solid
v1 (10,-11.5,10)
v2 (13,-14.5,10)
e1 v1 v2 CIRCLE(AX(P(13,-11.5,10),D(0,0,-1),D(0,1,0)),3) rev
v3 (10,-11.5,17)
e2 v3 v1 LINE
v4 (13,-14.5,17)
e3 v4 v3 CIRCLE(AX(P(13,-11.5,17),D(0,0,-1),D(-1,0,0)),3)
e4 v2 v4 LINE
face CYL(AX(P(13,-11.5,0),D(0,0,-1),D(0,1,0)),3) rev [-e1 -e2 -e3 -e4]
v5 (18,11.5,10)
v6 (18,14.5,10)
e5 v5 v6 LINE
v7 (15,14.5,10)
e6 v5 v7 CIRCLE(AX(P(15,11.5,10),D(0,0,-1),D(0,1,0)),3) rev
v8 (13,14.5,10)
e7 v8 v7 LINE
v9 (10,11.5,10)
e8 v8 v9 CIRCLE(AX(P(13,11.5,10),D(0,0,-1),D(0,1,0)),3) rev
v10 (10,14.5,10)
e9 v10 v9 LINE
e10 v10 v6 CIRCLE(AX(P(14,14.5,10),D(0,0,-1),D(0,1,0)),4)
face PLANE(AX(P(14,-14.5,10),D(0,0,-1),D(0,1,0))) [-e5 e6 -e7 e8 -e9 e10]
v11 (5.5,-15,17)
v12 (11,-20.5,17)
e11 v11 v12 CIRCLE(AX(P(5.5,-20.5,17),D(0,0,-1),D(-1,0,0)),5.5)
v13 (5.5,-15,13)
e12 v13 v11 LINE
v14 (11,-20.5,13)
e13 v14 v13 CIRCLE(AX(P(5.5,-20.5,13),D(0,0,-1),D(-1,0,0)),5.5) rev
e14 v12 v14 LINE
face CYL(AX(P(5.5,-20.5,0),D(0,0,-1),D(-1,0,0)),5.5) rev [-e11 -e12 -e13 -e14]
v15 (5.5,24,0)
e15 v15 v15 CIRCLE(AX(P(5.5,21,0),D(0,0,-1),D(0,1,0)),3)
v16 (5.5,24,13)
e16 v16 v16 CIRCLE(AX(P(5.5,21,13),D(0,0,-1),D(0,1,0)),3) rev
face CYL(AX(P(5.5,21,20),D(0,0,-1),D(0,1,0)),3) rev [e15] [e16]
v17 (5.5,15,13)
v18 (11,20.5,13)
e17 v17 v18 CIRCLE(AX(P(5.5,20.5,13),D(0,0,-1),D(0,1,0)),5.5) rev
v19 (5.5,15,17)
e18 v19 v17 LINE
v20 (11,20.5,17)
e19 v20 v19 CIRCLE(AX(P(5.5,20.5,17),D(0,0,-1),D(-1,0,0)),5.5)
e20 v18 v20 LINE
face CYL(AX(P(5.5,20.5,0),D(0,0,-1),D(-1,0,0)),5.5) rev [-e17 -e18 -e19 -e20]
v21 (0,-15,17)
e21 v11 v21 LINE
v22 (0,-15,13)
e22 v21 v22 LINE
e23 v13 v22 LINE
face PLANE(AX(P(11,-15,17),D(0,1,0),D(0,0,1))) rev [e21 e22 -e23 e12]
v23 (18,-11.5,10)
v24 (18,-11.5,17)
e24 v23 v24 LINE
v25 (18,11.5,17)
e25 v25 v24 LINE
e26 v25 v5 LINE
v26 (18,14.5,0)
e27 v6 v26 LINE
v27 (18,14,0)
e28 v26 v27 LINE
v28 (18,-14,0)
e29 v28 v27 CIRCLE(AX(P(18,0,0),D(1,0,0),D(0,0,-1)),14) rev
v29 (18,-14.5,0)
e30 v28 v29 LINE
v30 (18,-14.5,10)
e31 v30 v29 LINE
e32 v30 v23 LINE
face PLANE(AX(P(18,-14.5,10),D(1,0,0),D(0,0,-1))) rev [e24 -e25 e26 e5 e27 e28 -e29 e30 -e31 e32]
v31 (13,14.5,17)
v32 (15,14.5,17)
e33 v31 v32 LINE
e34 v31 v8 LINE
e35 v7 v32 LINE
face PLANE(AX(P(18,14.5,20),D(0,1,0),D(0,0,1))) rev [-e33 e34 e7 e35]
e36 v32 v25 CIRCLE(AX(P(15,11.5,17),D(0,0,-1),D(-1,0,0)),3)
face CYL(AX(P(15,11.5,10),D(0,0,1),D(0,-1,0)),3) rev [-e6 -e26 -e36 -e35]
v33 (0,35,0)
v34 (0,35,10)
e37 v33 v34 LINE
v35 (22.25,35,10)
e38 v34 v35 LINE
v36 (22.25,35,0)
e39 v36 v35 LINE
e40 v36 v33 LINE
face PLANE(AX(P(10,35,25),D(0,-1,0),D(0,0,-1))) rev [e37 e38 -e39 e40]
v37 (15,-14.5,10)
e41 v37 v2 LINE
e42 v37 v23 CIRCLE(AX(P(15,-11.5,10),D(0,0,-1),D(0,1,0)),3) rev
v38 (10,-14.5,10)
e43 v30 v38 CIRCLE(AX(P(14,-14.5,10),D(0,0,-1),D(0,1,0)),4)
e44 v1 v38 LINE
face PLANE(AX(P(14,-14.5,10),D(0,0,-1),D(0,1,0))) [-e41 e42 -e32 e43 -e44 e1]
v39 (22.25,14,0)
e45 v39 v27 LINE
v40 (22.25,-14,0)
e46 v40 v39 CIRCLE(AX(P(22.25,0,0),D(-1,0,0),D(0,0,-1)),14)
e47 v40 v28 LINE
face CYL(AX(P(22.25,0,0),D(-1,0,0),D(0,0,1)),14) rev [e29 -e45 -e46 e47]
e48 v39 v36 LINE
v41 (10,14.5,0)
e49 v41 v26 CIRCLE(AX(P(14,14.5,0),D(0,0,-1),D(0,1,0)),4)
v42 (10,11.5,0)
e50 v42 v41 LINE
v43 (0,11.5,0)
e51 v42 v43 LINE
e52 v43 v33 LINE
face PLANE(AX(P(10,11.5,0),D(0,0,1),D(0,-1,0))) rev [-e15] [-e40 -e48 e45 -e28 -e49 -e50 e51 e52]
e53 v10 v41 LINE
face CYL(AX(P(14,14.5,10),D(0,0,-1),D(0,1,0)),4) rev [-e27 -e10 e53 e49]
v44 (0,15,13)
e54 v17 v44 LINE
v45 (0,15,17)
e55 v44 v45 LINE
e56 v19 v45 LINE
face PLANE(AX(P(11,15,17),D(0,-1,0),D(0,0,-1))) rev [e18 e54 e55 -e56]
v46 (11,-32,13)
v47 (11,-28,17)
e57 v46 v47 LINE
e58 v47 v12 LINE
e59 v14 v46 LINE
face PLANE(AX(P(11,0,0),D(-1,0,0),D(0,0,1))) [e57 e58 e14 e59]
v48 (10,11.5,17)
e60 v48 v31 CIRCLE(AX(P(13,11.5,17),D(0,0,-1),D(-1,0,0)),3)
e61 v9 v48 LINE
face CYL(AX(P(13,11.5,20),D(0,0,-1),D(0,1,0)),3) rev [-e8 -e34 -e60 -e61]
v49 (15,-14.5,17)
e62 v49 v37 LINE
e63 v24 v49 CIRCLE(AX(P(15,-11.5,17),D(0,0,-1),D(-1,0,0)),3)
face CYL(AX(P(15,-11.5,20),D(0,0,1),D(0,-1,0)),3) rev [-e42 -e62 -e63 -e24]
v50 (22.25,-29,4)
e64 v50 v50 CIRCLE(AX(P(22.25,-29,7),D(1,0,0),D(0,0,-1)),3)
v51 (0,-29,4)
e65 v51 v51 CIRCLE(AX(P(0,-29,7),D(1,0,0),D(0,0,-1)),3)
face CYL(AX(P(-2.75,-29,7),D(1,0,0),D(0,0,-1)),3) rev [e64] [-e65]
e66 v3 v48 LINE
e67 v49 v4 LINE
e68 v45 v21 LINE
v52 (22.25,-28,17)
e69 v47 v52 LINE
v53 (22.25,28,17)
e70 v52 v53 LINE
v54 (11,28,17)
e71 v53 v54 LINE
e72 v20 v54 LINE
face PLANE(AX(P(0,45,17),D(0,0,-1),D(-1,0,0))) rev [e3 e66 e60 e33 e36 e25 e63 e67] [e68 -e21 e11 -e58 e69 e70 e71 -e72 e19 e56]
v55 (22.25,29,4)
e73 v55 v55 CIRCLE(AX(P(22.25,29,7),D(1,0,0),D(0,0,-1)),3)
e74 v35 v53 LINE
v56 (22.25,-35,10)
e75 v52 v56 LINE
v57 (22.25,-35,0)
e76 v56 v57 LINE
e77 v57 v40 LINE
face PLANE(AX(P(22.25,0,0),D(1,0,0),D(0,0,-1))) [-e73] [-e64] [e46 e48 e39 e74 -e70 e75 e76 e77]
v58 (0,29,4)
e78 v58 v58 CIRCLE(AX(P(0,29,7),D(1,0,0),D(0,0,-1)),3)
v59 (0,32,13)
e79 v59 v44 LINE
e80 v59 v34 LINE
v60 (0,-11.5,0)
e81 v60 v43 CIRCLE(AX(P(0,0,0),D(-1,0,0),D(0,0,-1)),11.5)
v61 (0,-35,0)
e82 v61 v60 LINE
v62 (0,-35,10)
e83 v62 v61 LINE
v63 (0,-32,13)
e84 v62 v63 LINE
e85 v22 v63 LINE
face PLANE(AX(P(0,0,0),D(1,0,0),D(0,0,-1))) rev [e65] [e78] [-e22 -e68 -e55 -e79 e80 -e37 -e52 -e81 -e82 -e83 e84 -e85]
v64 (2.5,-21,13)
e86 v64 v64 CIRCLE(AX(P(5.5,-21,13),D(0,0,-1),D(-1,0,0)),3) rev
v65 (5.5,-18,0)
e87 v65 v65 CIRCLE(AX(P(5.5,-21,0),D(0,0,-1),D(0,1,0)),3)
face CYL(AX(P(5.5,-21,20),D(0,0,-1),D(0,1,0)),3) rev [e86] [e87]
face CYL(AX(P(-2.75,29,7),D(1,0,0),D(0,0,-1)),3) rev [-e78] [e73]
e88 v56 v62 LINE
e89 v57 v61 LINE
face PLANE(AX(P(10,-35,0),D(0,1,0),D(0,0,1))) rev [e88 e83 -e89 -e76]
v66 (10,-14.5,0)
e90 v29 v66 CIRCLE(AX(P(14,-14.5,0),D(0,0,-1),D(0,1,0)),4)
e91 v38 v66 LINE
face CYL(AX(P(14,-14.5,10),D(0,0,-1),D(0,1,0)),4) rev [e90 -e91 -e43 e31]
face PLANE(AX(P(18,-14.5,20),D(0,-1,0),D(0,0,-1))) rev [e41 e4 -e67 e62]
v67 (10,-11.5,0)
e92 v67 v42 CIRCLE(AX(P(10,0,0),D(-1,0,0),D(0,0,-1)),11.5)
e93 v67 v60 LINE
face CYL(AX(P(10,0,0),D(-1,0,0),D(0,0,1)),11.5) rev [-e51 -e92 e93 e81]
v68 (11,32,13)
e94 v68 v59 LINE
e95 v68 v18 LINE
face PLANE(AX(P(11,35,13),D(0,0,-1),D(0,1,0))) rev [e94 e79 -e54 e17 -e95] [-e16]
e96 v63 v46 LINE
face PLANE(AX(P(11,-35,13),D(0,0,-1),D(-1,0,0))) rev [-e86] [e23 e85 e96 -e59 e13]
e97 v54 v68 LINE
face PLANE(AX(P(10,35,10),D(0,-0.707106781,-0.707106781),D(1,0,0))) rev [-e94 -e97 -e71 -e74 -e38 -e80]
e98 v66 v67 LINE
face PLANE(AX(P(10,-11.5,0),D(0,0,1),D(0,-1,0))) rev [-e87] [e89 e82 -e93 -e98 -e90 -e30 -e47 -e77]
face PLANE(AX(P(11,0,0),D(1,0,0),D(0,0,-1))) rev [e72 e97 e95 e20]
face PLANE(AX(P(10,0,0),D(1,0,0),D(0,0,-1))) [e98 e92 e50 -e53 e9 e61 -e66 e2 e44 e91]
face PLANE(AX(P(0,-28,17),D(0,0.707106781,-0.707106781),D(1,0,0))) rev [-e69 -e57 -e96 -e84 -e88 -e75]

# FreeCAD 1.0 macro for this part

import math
import FreeCAD as App
import Part
import Sketcher
from FreeCAD import Vector
Q = App.Units.Quantity


def edges_at(feature, points):
    """Names of the edges that pass closest to the given points."""
    edges = feature.Shape.Edges
    near = lambda p: min(range(len(edges)), key=lambda i: edges[i].distToShape(Part.Vertex(*p))[0])
    return sorted({f"Edge{near(p) + 1}" for p in points})


def add_polygon(sketch, points):
    """Adds a closed chain of lines whose ends are joined by coincident constraints."""
    first, n = sketch.GeometryCount, len(points)
    for a, b in zip(points, points[1:] + points[:1]):
        sketch.addGeometry(Part.LineSegment(App.Vector(*a, 0), App.Vector(*b, 0)), False)
    for i in range(n):
        sketch.addConstraint(Sketcher.Constraint("Coincident", first + i, 2, first + (i + 1) % n, 1))

doc = App.newDocument("Part")
body = doc.addObject("PartDesign::Body", "Body")

# Sketch on YZ plane
sketch1 = body.newObject("Sketcher::SketchObject", "Sketch")
sketch1.AttachmentSupport = (doc.getObject("YZ_Plane"), [""])
sketch1.MapMode = "FlatFace"
sketch1.addGeometry([
    Part.LineSegment(Vector(12, 0, 0), Vector(35, 0, 0)),  # 0
    Part.LineSegment(Vector(35, 0, 0), Vector(35, 25, 0)),  # 1
    Part.LineSegment(Vector(35, 25, 0), Vector(-35, 25, 0)),  # 2
    Part.LineSegment(Vector(-35, 25, 0), Vector(-35, 0, 0)),  # 3
    Part.LineSegment(Vector(-35, 0, 0), Vector(-12, 0, 0)),  # 4
    Part.ArcOfCircle(Part.Circle(Vector(0, 0, 0), Vector(0, 0, 1), 12), math.radians(0), math.radians(180)),  # 5
], False)
sketch1.addConstraint([
    Sketcher.Constraint("Coincident", 0, 2, 1, 1),
    Sketcher.Constraint("Coincident", 1, 2, 2, 1),
    Sketcher.Constraint("Coincident", 2, 2, 3, 1),
    Sketcher.Constraint("Coincident", 3, 2, 4, 1),
    Sketcher.Constraint("Coincident", 4, 2, 5, 2),
    Sketcher.Constraint("Coincident", 5, 1, 0, 1),
    Sketcher.Constraint("Horizontal", 0),
    Sketcher.Constraint("Vertical", 1),
    Sketcher.Constraint("Horizontal", 2),
    Sketcher.Constraint("Vertical", 3),
    Sketcher.Constraint("Horizontal", 4),
    Sketcher.Constraint("Coincident", 5, 3, -1, 1),
    Sketcher.Constraint("Symmetric", 0, 2, 3, 2, -1, 1),
    Sketcher.Constraint("PointOnObject", 0, 2, -1),
    Sketcher.Constraint("Radius", 5, Q("11.5 mm")),
    Sketcher.Constraint("DistanceX", 2, 2, 2, 1, Q("70 mm")),
    Sketcher.Constraint("DistanceY", 1, 1, 1, 2, Q("25 mm")),
])
pad1 = body.newObject("PartDesign::Pad", "Pad")
pad1.Profile = sketch1
pad1.Length = 10

# Sketch on YZ plane
sketch2 = body.newObject("Sketcher::SketchObject", "Sketch001")
sketch2.AttachmentSupport = (doc.getObject("YZ_Plane"), [""])
sketch2.MapMode = "FlatFace"
sketch2.AttachmentOffset = App.Placement(Vector(0, 0, 10), App.Rotation())
sketch2.addGeometry([
    Part.LineSegment(Vector(-35, 0, 0), Vector(-14, 0, 0)),  # 0
    Part.ArcOfCircle(Part.Circle(Vector(0, 0, 0), Vector(0, 0, 1), 14), math.radians(0), math.radians(180)),  # 1
    Part.LineSegment(Vector(14, 0, 0), Vector(35, 0, 0)),  # 2
    Part.LineSegment(Vector(35, 0, 0), Vector(35, 25, 0)),  # 3
    Part.LineSegment(Vector(35, 25, 0), Vector(-35, 25, 0)),  # 4
    Part.LineSegment(Vector(-35, 25, 0), Vector(-35, 0, 0)),  # 5
], False)
sketch2.addConstraint([
    Sketcher.Constraint("Coincident", 0, 2, 1, 2),
    Sketcher.Constraint("Coincident", 1, 1, 2, 1),
    Sketcher.Constraint("Coincident", 2, 2, 3, 1),
    Sketcher.Constraint("Coincident", 3, 2, 4, 1),
    Sketcher.Constraint("Coincident", 4, 2, 5, 1),
    Sketcher.Constraint("Coincident", 5, 2, 0, 1),
    Sketcher.Constraint("Horizontal", 0),
    Sketcher.Constraint("Horizontal", 2),
    Sketcher.Constraint("Vertical", 3),
    Sketcher.Constraint("Horizontal", 4),
    Sketcher.Constraint("Vertical", 5),
    Sketcher.Constraint("Coincident", 1, 3, -1, 1),
    Sketcher.Constraint("Symmetric", 2, 2, 5, 2, -1, 1),
    Sketcher.Constraint("PointOnObject", 0, 2, -1),
    Sketcher.Constraint("Radius", 1, Q("14 mm")),
    Sketcher.Constraint("DistanceX", 0, 1, 0, 2, Q("21 mm")),
    Sketcher.Constraint("DistanceY", 3, 1, 3, 2, Q("25 mm")),
])
pad2 = body.newObject("PartDesign::Pad", "Pad001")
pad2.Profile = sketch2
pad2.Length = 12.25

# Sketch on XZ plane
sketch3 = body.newObject("Sketcher::SketchObject", "Sketch002")
sketch3.AttachmentSupport = (doc.getObject("XZ_Plane"), [""])
sketch3.MapMode = "FlatFace"
sketch3.AttachmentOffset = App.Placement(Vector(0, 0, 35), App.Rotation())
add_polygon(sketch3, [(0, 25), (0, 17), (22, 17), (22, 25)])  # lines 0-3
sketch3.addConstraint([
    Sketcher.Constraint("Vertical", 0),
    Sketcher.Constraint("Horizontal", 1),
    Sketcher.Constraint("Vertical", 2),
    Sketcher.Constraint("Horizontal", 3),
    Sketcher.Constraint("PointOnObject", 0, 2, -2),
    Sketcher.Constraint("DistanceY", 0, 2, 0, 1, Q("8 mm")),
    Sketcher.Constraint("DistanceY", -1, 1, 0, 2, Q("17 mm")),
    Sketcher.Constraint("DistanceX", 1, 1, 1, 2, Q("22.25 mm")),
])
pocket1 = body.newObject("PartDesign::Pocket", "Pocket")
pocket1.Profile = sketch3
pocket1.Length = 80

# Sketch on YZ plane
sketch4 = body.newObject("Sketcher::SketchObject", "Sketch003")
sketch4.AttachmentSupport = (doc.getObject("YZ_Plane"), [""])
sketch4.MapMode = "FlatFace"
sketch4.AttachmentOffset = App.Placement(Vector(0, 0, 22.25), App.Rotation())
sketch4.addGeometry([
    Part.Circle(Vector(-29, 7, 0), Vector(0, 0, 1), 3),
    Part.Circle(Vector(29, 7, 0), Vector(0, 0, 1), 3),
], False)
sketch4.addConstraint([
    Sketcher.Constraint("Equal", 0, 1),
    Sketcher.Constraint("Symmetric", 0, 3, 1, 3, -2),
    Sketcher.Constraint("Diameter", 0, Q("6 mm")),
    Sketcher.Constraint("DistanceX", 0, 3, -1, 1, Q("29 mm")),
    Sketcher.Constraint("DistanceY", -1, 1, 0, 3, Q("7 mm")),
])
pocket2 = body.newObject("PartDesign::Pocket", "Pocket001")
pocket2.Profile = sketch4
pocket2.Length = 25

# Sketch on XY plane
sketch5 = body.newObject("Sketcher::SketchObject", "Sketch004")
sketch5.AttachmentSupport = (doc.getObject("XY_Plane"), [""])
sketch5.MapMode = "FlatFace"
sketch5.addGeometry([
    Part.LineSegment(Vector(18, 14.5, 0), Vector(18, -14.5, 0)),
    Part.ArcOfCircle(Part.Circle(Vector(14, -14.5, 0), Vector(0, 0, 1), 4), math.radians(180), math.radians(360)),
    Part.LineSegment(Vector(10, -14.5, 0), Vector(10, 14.5, 0)),
    Part.ArcOfCircle(Part.Circle(Vector(14, 14.5, 0), Vector(0, 0, 1), 4), math.radians(0), math.radians(180)),
], False)
sketch5.addConstraint([
    Sketcher.Constraint("Tangent", 0, 2, 1, 2),
    Sketcher.Constraint("Tangent", 1, 1, 2, 1),
    Sketcher.Constraint("Tangent", 2, 2, 3, 2),
    Sketcher.Constraint("Tangent", 3, 1, 0, 1),
    Sketcher.Constraint("Vertical", 0),
    Sketcher.Constraint("Vertical", 2),
    Sketcher.Constraint("Radius", 1, Q("4 mm")),
    Sketcher.Constraint("DistanceY", 0, 2, 0, 1, Q("29 mm")),
    Sketcher.Constraint("DistanceX", -1, 1, 1, 3, Q("14 mm")),
    Sketcher.Constraint("DistanceY", 1, 3, -1, 1, Q("14.5 mm")),
])
pocket3 = body.newObject("PartDesign::Pocket", "Pocket002")
pocket3.Profile = sketch5
pocket3.Length = 10
pocket3.Reversed = True

# Sketch on XY plane
sketch6 = body.newObject("Sketcher::SketchObject", "Sketch005")
sketch6.AttachmentSupport = (doc.getObject("XY_Plane"), [""])
sketch6.MapMode = "FlatFace"
sketch6.AttachmentOffset = App.Placement(Vector(0, 0, 10), App.Rotation())
add_polygon(sketch6, [(18, 14), (18, -14), (10, -14), (10, 14)])  # lines 0-3
sketch6.addConstraint([
    Sketcher.Constraint("Vertical", 0),
    Sketcher.Constraint("Horizontal", 1),
    Sketcher.Constraint("Vertical", 2),
    Sketcher.Constraint("Horizontal", 3),
    Sketcher.Constraint("DistanceX", 1, 2, 1, 1, Q("8 mm")),
    Sketcher.Constraint("DistanceY", 0, 2, 0, 1, Q("29 mm")),
    Sketcher.Constraint("DistanceX", -1, 1, 0, 2, Q("18 mm")),
    Sketcher.Constraint("DistanceY", 0, 2, -1, 1, Q("14.5 mm")),
])
pocket4 = body.newObject("PartDesign::Pocket", "Pocket003")
pocket4.Profile = sketch6
pocket4.Length = 10
pocket4.Reversed = True
doc.recompute()

fillet = body.newObject("PartDesign::Fillet", "Fillet")
fillet.Base = (pocket4, edges_at(pocket4, [
    (18, 14.5, 13.5),
    (18, -14.5, 13.5),
    (10, 14.5, 13.5),
    (10, -14.5, 13.5),
]))
fillet.Radius = 3

# Sketch on XY plane
sketch7 = body.newObject("Sketcher::SketchObject", "Sketch006")
sketch7.AttachmentSupport = (doc.getObject("XY_Plane"), [""])
sketch7.MapMode = "FlatFace"
sketch7.addGeometry([
    Part.Circle(Vector(5.5, -21, 0), Vector(0, 0, 1), 3),
    Part.Circle(Vector(5.5, 21, 0), Vector(0, 0, 1), 3),
], False)
sketch7.addConstraint([
    Sketcher.Constraint("Equal", 0, 1),
    Sketcher.Constraint("Symmetric", 0, 3, 1, 3, -1),
    Sketcher.Constraint("Diameter", 0, Q("6 mm")),
    Sketcher.Constraint("DistanceY", 0, 3, -1, 1, Q("21 mm")),
    Sketcher.Constraint("DistanceX", -1, 1, 0, 3, Q("5.5 mm")),
])
pocket5 = body.newObject("PartDesign::Pocket", "Pocket004")
pocket5.Profile = sketch7
pocket5.Length = 20
pocket5.Reversed = True

# Sketch on YZ plane
sketch8 = body.newObject("Sketcher::SketchObject", "Sketch007")
sketch8.AttachmentSupport = (doc.getObject("YZ_Plane"), [""])
sketch8.MapMode = "FlatFace"
add_polygon(sketch8, [(-15, 13), (-35, 13), (-35, 17), (-15, 17)])  # lines 0-3
add_polygon(sketch8, [(35, 13), (15, 13), (15, 17), (35, 17)])  # lines 4-7
sketch8.addConstraint([
    Sketcher.Constraint("Horizontal", 0),
    Sketcher.Constraint("Vertical", 1),
    Sketcher.Constraint("Horizontal", 2),
    Sketcher.Constraint("Vertical", 3),
    Sketcher.Constraint("Horizontal", 4),
    Sketcher.Constraint("Vertical", 5),
    Sketcher.Constraint("Horizontal", 6),
    Sketcher.Constraint("Vertical", 7),
    Sketcher.Constraint("Symmetric", 3, 2, 4, 2, -2),
    Sketcher.Constraint("Symmetric", 1, 2, 6, 2, -2),
    Sketcher.Constraint("DistanceX", 0, 2, 0, 1, Q("20 mm")),
    Sketcher.Constraint("DistanceY", 1, 1, 1, 2, Q("4 mm")),
    Sketcher.Constraint("DistanceX", 0, 2, -1, 1, Q("35 mm")),
    Sketcher.Constraint("DistanceY", -1, 1, 0, 2, Q("13 mm")),
])
pocket6 = body.newObject("PartDesign::Pocket", "Pocket005")
pocket6.Profile = sketch8
pocket6.Length = 11
pocket6.Reversed = True
doc.recompute()

fillet2 = body.newObject("PartDesign::Fillet", "Fillet001")
fillet2.Base = (pocket6, edges_at(pocket6, [(11, -15, 15), (11, 15, 15)]))
fillet2.Radius = 5.5
doc.recompute()

chamfer = body.newObject("PartDesign::Chamfer", "Chamfer")
chamfer.Base = (fillet2, edges_at(fillet2, [(16.625, -35, 17), (16.625, 35, 17)]))
chamfer.Size = 7

doc.recompute()
